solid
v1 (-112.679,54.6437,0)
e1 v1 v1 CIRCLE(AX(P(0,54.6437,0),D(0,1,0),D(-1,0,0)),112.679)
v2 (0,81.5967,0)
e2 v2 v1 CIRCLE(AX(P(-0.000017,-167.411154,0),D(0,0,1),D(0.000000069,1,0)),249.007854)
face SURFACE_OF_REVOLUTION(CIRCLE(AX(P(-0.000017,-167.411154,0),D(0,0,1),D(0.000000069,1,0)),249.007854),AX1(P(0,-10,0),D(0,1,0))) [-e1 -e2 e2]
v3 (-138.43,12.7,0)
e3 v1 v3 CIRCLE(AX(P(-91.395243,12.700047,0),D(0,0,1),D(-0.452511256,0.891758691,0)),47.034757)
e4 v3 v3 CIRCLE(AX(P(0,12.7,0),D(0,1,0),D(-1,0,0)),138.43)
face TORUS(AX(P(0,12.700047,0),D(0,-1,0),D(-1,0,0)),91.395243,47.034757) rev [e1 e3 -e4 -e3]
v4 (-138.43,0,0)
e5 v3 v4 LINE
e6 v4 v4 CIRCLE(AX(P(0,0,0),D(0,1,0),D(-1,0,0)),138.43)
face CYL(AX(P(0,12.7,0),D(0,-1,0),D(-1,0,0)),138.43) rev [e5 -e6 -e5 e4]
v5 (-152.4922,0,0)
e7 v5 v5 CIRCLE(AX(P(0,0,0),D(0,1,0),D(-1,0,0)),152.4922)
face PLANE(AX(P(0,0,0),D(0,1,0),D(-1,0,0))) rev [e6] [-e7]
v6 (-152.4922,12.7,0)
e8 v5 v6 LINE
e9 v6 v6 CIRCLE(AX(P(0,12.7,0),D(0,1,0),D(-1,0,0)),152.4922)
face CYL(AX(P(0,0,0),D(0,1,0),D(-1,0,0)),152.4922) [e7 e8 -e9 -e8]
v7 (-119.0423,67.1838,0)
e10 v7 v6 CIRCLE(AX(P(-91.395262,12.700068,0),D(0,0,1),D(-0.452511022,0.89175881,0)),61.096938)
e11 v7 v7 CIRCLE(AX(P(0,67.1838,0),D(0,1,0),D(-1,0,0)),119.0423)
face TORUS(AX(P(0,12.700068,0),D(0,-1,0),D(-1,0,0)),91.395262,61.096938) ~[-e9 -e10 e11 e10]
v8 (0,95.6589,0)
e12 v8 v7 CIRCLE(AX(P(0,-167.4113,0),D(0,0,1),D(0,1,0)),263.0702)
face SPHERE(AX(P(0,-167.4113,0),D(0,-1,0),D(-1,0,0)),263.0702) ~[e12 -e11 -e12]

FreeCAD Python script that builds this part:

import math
import FreeCAD as App
import Part
import Sketcher
from FreeCAD import Vector
Q = App.Units.Quantity

doc = App.newDocument("Part")
body = doc.addObject("PartDesign::Body", "Body")

# Sketch on XY plane
sketch1 = body.newObject("Sketcher::SketchObject", "Sketch")
sketch1.AttachmentSupport = (doc.getObject("XY_Plane"), [""])
sketch1.MapMode = "FlatFace"
sketch1.addGeometry([
    Part.ArcOfCircle(Part.Circle(Vector(0, -167, 0), Vector(0, 0, 1), 249), math.radians(90), math.radians(117)),  # 0
    Part.LineSegment(Vector(0, 82, 0), Vector(0, 96, 0)),  # 1
    Part.ArcOfCircle(Part.Circle(Vector(0, -167, 0), Vector(0, 0, 1), 263), math.radians(90), math.radians(117)),  # 2
    Part.ArcOfCircle(Part.Circle(Vector(-91, 13, 0), Vector(0, 0, 1), 61), math.radians(117), math.radians(180)),  # 3
    Part.LineSegment(Vector(-152, 13, 0), Vector(-152, 0, 0)),  # 4
    Part.LineSegment(Vector(-152, 0, 0), Vector(-138, 0, 0)),  # 5
    Part.LineSegment(Vector(-138, 0, 0), Vector(-138, 13, 0)),  # 6
    Part.ArcOfCircle(Part.Circle(Vector(-91, 13, 0), Vector(0, 0, 1), 47), math.radians(117), math.radians(180)),  # 7
], False)
sketch1.addConstraint([
    Sketcher.Constraint("Coincident", 0, 1, 1, 1),
    Sketcher.Constraint("Coincident", 1, 2, 2, 1),
    Sketcher.Constraint("Tangent", 2, 2, 3, 1),
    Sketcher.Constraint("Tangent", 3, 2, 4, 1),
    Sketcher.Constraint("Coincident", 4, 2, 5, 1),
    Sketcher.Constraint("Coincident", 5, 2, 6, 1),
    Sketcher.Constraint("Tangent", 6, 2, 7, 2),
    Sketcher.Constraint("Tangent", 7, 1, 0, 2),
    Sketcher.Constraint("Vertical", 1),
    Sketcher.Constraint("Vertical", 4),
    Sketcher.Constraint("Horizontal", 5),
    Sketcher.Constraint("Vertical", 6),
    Sketcher.Constraint("Coincident", 2, 3, 0, 3),
    Sketcher.Constraint("Coincident", 7, 3, 3, 3),
    Sketcher.Constraint("PointOnObject", 0, 3, -2),
    Sketcher.Constraint("PointOnObject", 0, 1, -2),
    Sketcher.Constraint("PointOnObject", 4, 2, -1),
    Sketcher.Constraint("DistanceY", 4, 2, 4, 1, Q("0.5 in")),
    Sketcher.Constraint("Radius", 3, Q("2.4054 in")),
    Sketcher.Constraint("DistanceX", 5, 2, -1, 1, Q("5.45 in")),
    Sketcher.Constraint("Radius", 0, 249.008),
    Sketcher.Constraint("Radius", 7, 47.0348),
])
revolution = body.newObject("PartDesign::Revolution", "Revolution")
revolution.Profile = sketch1
revolution.ReferenceAxis = (sketch1, ["V_Axis"])
revolution.Angle = 360

doc.recompute()
